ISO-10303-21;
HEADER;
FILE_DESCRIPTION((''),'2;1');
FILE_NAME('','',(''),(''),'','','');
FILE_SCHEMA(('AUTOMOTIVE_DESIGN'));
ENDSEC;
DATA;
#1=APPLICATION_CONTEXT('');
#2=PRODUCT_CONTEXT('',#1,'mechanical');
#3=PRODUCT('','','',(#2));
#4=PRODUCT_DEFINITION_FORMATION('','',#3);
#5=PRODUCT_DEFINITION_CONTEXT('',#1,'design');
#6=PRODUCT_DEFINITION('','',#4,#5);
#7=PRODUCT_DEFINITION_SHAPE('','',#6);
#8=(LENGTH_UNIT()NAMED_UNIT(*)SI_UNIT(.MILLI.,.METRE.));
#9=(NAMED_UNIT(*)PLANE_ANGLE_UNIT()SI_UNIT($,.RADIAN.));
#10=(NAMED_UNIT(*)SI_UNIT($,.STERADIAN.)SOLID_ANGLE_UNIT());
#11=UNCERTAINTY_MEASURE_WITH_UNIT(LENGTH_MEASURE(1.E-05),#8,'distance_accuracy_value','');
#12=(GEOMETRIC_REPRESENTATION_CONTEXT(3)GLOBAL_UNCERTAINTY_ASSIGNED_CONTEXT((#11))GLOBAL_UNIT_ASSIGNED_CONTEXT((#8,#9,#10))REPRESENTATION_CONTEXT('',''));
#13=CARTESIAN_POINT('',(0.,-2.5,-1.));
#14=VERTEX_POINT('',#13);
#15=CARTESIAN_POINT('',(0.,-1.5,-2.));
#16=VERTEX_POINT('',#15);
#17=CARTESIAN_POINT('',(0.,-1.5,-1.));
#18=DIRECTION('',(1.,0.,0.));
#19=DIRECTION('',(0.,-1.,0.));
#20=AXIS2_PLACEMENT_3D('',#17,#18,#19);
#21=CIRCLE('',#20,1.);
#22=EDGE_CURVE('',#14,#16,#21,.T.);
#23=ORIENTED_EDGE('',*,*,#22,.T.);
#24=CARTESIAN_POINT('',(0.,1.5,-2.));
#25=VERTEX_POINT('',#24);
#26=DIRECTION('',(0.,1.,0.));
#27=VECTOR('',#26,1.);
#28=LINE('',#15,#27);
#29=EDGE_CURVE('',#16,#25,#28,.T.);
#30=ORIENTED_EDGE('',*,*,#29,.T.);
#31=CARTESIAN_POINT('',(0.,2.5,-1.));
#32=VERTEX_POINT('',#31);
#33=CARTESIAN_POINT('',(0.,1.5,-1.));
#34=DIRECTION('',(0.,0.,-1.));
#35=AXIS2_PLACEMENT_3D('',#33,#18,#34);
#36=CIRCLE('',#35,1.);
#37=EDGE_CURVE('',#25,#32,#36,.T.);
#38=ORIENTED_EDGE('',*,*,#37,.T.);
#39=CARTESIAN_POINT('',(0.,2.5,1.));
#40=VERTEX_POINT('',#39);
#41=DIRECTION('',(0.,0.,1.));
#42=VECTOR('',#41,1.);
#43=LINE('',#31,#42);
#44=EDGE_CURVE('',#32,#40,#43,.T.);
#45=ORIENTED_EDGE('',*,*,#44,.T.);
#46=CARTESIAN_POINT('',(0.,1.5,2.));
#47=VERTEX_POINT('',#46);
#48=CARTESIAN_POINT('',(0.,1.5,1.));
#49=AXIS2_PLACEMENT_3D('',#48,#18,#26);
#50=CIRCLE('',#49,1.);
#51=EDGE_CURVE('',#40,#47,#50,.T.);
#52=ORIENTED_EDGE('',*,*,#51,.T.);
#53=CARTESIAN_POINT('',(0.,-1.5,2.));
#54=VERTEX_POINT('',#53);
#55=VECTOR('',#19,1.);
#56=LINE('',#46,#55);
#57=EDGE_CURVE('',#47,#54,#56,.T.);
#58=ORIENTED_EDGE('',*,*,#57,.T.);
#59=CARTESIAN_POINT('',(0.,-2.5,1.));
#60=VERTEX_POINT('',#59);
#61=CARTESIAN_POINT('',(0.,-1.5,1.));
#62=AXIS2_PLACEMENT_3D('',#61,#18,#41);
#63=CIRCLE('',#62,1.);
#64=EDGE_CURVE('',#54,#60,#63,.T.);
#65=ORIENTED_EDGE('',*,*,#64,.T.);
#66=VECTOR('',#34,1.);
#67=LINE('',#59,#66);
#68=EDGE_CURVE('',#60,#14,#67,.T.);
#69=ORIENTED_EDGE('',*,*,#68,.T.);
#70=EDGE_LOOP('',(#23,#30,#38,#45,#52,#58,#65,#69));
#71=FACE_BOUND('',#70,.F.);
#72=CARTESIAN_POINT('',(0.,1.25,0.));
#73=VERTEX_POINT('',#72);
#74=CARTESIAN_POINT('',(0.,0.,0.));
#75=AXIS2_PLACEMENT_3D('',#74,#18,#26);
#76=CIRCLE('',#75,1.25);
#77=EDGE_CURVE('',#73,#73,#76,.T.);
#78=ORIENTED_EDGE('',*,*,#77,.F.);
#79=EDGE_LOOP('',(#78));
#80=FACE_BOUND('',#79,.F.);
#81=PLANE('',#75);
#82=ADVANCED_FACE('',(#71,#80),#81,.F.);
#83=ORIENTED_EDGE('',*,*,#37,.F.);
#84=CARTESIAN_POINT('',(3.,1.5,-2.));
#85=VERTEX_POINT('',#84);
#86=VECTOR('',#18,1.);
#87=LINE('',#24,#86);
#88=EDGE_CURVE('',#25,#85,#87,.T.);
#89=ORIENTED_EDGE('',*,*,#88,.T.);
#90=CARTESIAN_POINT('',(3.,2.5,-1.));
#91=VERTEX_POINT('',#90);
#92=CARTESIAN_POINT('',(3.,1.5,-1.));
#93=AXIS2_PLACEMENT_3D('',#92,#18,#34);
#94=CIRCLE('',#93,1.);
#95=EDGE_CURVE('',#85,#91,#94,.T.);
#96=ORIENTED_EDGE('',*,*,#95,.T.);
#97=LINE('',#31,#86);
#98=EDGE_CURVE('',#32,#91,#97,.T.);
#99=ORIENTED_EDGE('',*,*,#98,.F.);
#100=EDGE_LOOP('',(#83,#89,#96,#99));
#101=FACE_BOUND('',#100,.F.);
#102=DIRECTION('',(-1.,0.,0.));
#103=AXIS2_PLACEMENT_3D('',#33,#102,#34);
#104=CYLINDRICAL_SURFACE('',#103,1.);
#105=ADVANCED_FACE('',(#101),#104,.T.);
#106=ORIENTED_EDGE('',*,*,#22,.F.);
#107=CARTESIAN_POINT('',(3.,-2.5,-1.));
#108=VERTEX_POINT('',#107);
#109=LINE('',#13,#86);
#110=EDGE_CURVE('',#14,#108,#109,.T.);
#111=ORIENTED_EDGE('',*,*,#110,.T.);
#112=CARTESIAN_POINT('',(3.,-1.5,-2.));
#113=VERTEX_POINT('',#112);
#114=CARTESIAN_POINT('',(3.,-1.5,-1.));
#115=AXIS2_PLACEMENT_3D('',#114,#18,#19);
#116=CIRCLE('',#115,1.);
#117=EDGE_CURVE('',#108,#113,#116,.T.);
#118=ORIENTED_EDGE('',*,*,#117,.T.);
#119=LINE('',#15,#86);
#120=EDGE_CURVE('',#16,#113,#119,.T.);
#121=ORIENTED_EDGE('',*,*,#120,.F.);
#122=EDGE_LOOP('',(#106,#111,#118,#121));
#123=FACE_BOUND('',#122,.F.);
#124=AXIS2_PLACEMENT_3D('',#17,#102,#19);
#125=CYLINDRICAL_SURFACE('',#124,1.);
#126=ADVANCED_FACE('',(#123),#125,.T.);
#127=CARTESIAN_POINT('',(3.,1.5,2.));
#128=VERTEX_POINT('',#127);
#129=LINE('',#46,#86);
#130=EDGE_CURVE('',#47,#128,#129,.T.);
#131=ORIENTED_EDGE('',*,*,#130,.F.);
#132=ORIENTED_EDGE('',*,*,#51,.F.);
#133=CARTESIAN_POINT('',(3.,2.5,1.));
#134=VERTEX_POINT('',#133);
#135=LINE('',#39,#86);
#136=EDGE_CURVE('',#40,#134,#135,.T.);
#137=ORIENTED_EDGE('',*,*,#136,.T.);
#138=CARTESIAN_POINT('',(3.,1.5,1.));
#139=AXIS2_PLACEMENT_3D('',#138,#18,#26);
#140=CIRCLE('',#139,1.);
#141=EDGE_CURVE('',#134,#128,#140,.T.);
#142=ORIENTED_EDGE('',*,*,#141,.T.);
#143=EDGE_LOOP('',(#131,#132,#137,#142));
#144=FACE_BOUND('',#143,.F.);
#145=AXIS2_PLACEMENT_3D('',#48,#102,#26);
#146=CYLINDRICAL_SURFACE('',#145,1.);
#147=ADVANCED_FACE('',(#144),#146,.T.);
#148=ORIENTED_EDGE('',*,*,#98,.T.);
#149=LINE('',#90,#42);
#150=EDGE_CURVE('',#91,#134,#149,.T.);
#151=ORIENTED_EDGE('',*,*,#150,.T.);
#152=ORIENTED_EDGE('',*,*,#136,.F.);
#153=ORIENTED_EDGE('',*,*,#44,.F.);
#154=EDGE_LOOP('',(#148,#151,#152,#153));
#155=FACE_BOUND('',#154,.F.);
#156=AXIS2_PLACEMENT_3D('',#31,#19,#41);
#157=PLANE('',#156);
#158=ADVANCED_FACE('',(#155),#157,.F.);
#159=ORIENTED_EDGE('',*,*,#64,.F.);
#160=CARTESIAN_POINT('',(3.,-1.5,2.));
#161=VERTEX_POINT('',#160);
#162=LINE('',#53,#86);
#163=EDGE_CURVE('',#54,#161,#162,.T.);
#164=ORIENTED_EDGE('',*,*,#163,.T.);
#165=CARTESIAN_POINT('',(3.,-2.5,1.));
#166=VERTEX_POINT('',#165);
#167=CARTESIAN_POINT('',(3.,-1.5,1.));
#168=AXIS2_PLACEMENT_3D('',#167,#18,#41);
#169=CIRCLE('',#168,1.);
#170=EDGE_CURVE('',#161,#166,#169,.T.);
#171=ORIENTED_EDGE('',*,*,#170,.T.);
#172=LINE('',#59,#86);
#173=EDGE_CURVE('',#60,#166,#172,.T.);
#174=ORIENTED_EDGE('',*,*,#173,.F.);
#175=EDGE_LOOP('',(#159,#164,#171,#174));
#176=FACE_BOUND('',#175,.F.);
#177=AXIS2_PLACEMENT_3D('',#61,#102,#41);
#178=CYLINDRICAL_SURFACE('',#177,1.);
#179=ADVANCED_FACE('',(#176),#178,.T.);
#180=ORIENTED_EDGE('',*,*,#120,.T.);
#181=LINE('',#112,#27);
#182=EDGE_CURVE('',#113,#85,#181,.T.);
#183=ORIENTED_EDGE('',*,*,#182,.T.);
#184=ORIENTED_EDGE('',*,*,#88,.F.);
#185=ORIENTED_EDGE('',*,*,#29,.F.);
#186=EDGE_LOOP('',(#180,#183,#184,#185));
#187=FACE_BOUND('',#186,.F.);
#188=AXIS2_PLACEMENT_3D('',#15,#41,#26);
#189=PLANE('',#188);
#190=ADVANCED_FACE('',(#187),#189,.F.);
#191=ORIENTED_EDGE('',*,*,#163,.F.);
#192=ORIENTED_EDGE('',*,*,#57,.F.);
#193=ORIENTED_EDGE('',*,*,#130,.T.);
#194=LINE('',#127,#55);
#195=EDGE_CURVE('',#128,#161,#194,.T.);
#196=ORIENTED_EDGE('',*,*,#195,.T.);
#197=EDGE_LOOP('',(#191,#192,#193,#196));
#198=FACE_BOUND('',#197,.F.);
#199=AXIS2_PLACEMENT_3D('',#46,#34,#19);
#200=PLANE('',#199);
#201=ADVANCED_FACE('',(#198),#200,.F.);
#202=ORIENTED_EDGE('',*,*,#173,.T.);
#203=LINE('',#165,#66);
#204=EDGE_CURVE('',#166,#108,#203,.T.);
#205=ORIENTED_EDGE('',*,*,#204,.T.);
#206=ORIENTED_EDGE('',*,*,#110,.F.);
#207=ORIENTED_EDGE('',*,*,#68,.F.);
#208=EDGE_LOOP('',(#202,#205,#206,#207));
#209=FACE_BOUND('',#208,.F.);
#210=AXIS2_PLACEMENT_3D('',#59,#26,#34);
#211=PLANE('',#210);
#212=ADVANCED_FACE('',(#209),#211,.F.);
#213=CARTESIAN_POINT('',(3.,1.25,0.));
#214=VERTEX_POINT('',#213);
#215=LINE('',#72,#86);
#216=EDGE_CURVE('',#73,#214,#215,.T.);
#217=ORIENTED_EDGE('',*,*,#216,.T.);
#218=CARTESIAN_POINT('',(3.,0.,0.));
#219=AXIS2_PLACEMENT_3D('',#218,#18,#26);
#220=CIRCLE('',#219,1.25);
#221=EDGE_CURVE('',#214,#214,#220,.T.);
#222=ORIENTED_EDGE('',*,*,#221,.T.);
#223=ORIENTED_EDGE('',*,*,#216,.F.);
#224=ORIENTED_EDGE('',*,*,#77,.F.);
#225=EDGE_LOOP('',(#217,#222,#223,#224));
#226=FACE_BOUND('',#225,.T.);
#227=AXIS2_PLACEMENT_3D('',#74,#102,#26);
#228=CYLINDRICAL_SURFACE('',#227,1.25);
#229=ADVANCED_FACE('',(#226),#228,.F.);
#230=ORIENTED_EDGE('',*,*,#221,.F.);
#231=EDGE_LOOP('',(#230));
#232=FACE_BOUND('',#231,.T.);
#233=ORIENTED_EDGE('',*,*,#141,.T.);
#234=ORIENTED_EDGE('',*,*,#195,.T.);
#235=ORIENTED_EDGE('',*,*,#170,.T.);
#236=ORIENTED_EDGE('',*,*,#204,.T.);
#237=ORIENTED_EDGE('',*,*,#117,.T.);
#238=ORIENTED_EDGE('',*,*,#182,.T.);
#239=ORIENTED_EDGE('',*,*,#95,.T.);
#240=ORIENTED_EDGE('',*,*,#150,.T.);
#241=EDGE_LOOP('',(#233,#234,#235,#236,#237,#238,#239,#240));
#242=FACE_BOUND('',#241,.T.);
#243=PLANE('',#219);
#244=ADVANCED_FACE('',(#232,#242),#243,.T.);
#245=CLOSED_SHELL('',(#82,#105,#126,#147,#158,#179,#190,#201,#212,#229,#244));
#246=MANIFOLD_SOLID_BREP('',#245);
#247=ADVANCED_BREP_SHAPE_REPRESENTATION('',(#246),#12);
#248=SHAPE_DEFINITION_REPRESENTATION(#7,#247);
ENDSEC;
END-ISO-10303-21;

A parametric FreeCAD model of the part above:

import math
import FreeCAD as App
import Part
import Sketcher

V = App.Vector
Q = App.Units.Quantity

doc = App.newDocument("Part")
body = doc.addObject("PartDesign::Body", "Body")

sketch1 = doc.addObject("Sketcher::SketchObject", "Sketch")
body.addObject(sketch1)
sketch1.AttachmentSupport = (doc.YZ_Plane, [""])
sketch1.MapMode = "FlatFace"
sketch1.addGeometry([
    Part.ArcOfCircle(Part.Circle(V(1.5, 1, 0), V(0, 0, 1), 1), math.radians(0), math.radians(90)),
    Part.LineSegment(V(1.5, 2, 0), V(-1.5, 2, 0)),
    Part.ArcOfCircle(Part.Circle(V(-1.5, 1, 0), V(0, 0, 1), 1), math.radians(90), math.radians(180)),
    Part.LineSegment(V(-2.5, 1, 0), V(-2.5, -1, 0)),
    Part.ArcOfCircle(Part.Circle(V(-1.5, -1, 0), V(0, 0, 1), 1), math.radians(180), math.radians(270)),
    Part.LineSegment(V(-1.5, -2, 0), V(1.5, -2, 0)),
    Part.ArcOfCircle(Part.Circle(V(1.5, -1, 0), V(0, 0, 1), 1), math.radians(-90), math.radians(0)),
    Part.LineSegment(V(2.5, -1, 0), V(2.5, 1, 0)),
    Part.Circle(V(0, 0, 0), V(0, 0, 1), 1.25),
], False)
sketch1.addConstraint([
    Sketcher.Constraint("Tangent", 0, 2, 1, 1),
    Sketcher.Constraint("Tangent", 1, 2, 2, 1),
    Sketcher.Constraint("Tangent", 2, 2, 3, 1),
    Sketcher.Constraint("Tangent", 3, 2, 4, 1),
    Sketcher.Constraint("Tangent", 4, 2, 5, 1),
    Sketcher.Constraint("Tangent", 5, 2, 6, 1),
    Sketcher.Constraint("Tangent", 6, 2, 7, 1),
    Sketcher.Constraint("Tangent", 7, 2, 0, 1),
    Sketcher.Constraint("Horizontal", 1),
    Sketcher.Constraint("Vertical", 3),
    Sketcher.Constraint("Horizontal", 5),
    Sketcher.Constraint("Vertical", 7),
    Sketcher.Constraint("Coincident", 8, 3, -1, 1),
    Sketcher.Constraint("Equal", 0, 2),
    Sketcher.Constraint("Equal", 2, 4),
    Sketcher.Constraint("Equal", 4, 6),
    Sketcher.Constraint("Symmetric", 0, 3, 4, 3, -1, 1),
    Sketcher.Constraint("Radius", 0, Q("1 mm")),
    Sketcher.Constraint("Diameter", 8, Q("2.5 mm")),
    Sketcher.Constraint("DistanceY", -1, 1, 0, 3, Q("1 mm")),
    Sketcher.Constraint("DistanceX", 2, 2, 0, 3, Q("4 mm")),
])
pad1 = doc.addObject("PartDesign::Pad", "Pad")
body.addObject(pad1)
pad1.Profile = sketch1
pad1.Length = 3

doc.recompute()
